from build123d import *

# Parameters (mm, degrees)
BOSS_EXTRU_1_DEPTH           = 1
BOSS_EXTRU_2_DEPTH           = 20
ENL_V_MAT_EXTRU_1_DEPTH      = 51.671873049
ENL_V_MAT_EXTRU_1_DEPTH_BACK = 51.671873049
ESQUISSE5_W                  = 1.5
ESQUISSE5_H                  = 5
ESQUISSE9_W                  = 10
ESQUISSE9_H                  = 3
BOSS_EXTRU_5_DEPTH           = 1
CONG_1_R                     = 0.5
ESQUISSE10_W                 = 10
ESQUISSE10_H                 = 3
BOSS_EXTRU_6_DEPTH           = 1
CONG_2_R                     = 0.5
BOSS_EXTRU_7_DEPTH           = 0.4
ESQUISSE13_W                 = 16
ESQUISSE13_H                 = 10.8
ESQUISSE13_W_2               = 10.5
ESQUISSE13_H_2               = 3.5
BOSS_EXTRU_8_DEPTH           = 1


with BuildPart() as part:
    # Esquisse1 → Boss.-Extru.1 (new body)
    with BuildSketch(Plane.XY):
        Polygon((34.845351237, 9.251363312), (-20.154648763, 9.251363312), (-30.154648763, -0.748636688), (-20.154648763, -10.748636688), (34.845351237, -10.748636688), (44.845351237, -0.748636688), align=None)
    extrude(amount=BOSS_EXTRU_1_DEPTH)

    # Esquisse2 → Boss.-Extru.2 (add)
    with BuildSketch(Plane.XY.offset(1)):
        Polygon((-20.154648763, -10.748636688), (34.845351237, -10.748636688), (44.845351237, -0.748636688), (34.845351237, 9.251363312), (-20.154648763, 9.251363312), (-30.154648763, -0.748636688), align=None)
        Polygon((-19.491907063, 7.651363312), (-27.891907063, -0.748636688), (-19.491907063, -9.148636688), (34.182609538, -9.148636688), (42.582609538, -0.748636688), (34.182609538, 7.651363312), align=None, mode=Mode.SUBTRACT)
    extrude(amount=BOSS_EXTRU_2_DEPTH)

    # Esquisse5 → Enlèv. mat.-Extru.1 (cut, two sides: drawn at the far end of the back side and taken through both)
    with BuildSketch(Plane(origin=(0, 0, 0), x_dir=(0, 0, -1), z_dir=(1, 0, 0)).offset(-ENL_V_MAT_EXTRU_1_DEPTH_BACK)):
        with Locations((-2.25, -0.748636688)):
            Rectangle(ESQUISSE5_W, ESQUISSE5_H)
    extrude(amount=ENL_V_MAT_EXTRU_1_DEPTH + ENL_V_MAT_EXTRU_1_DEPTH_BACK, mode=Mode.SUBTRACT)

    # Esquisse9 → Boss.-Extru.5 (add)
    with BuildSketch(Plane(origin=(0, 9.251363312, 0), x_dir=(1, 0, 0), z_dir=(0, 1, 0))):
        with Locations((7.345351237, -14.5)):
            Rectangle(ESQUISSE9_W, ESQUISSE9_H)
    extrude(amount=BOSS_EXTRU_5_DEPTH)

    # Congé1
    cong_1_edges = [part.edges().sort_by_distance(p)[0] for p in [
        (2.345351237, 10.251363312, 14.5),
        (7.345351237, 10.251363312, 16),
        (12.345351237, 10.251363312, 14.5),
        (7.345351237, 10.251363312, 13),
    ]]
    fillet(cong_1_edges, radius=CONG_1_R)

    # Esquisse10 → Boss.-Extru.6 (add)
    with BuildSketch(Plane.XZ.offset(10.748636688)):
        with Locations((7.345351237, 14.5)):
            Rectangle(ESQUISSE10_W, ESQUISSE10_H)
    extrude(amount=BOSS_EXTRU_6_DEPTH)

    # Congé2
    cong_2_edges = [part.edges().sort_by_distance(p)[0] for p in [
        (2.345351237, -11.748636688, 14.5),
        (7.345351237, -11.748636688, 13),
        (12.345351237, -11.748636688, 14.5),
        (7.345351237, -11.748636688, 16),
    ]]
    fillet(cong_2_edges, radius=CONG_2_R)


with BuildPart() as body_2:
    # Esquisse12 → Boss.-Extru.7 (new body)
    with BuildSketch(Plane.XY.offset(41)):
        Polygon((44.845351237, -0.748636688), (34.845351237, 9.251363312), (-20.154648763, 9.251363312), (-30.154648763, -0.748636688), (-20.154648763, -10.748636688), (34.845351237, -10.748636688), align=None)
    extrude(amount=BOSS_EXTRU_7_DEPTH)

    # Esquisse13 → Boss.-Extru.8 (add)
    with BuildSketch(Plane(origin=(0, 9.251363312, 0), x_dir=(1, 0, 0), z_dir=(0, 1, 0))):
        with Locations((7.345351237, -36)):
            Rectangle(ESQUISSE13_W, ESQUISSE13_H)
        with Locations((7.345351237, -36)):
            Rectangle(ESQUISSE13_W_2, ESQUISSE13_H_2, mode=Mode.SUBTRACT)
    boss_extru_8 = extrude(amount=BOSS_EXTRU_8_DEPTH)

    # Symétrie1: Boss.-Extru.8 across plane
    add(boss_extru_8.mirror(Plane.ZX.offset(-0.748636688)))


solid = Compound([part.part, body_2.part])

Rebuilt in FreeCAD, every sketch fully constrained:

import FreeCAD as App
import Part
import Sketcher

V = App.Vector


def edges_at(feature, points):
    """Names of the edges that pass closest to the given points."""
    edges = feature.Shape.Edges
    near = lambda p: min(range(len(edges)), key=lambda i: edges[i].distToShape(Part.Vertex(*p))[0])
    return sorted({f"Edge{near(p) + 1}" for p in points})


def add_polygon(sketch, points):
    """Adds a closed chain of lines whose ends are joined by coincident constraints."""
    first, n = sketch.GeometryCount, len(points)
    for a, b in zip(points, points[1:] + points[:1]):
        sketch.addGeometry(Part.LineSegment(App.Vector(*a, 0), App.Vector(*b, 0)), False)
    for i in range(n):
        sketch.addConstraint(Sketcher.Constraint("Coincident", first + i, 2, first + (i + 1) % n, 1))

doc = App.newDocument("Part")
params = doc.addObject("Spreadsheet::Sheet", "Params")
for row, (alias, value) in enumerate([
    ("sketch1_width", "55 mm"),
    ("pad1_length", "1 mm"),
    ("sketch2_width", "55 mm"),
    ("pad2_length", "20 mm"),
    ("sketch3_width", "5 mm"),
    ("sketch3_height", "1.5 mm"),
    ("sketch4_width", "10 mm"),
    ("sketch4_height", "3 mm"),
    ("pad3_length", "1 mm"),
    ("fillet_radius", "0.5 mm"),
    ("sketch5_width", "10 mm"),
    ("sketch5_height", "3 mm"),
    ("pad4_length", "1 mm"),
    ("fillet2_radius", "0.5 mm"),
    ("sketch6_width", "55 mm"),
    ("pad5_length", "0.4 mm"),
    ("sketch7_width", "16 mm"),
    ("sketch7_width2", "10.5 mm"),
    ("sketch7_height", "10.8 mm"),
    ("sketch7_height2", "3.5 mm"),
    ("pad6_length", "1 mm"),
], start=1):
    params.set(f"A{row}", alias)
    params.set(f"B{row}", "=" + value)
    params.setAlias(f"B{row}", alias)

body = doc.addObject("PartDesign::Body", "Body")

sketch1 = body.newObject("Sketcher::SketchObject", "Sketch")
sketch1.AttachmentSupport = (doc.getObject("XY_Plane"), [""])
sketch1.MapMode = "FlatFace"
add_polygon(sketch1, [(35, 9), (-20, 9), (-30, -1), (-20, -11), (35, -11), (45, -1)])
sketch1.addConstraint(Sketcher.Constraint("Horizontal", 0))
sketch1.addConstraint(Sketcher.Constraint("Horizontal", 3))
sketch1.addConstraint(Sketcher.Constraint("Perpendicular", 1, 2))
sketch1.addConstraint(Sketcher.Constraint("Perpendicular", 2, 4))
sketch1.addConstraint(Sketcher.Constraint("Perpendicular", 4, 5))
sketch1.addConstraint(Sketcher.Constraint("Horizontal", 1, 2, 4, 2))
sketch1.addConstraint(Sketcher.Constraint("Vertical", 0, 2, 2, 2))
sketch1.addConstraint(Sketcher.Constraint("Vertical", 3, 2, 5, 2))
sketch1.addConstraint(Sketcher.Constraint("DistanceX", 0, 2, 0, 1, 55.0))
sketch1.addConstraint(Sketcher.Constraint("DistanceX", 1, 2, 0, 2, 10.0))
sketch1.addConstraint(Sketcher.Constraint("DistanceX", 0, 2, -1, 1, 20.154649))
sketch1.addConstraint(Sketcher.Constraint("DistanceY", -1, 1, 0, 2, 9.251363))
sketch1.setExpression("Constraints[14]", "Params.sketch1_width")
pad1 = body.newObject("PartDesign::Pad", "Pad")
pad1.Profile = sketch1
pad1.setExpression("Length", "Params.pad1_length")

sketch2 = body.newObject("Sketcher::SketchObject", "Sketch001")
sketch2.AttachmentSupport = (doc.getObject("XY_Plane"), [""])
sketch2.MapMode = "FlatFace"
sketch2.AttachmentOffset = App.Placement(V(0, 0, 1), App.Rotation())
add_polygon(sketch2, [(-20, -11), (35, -11), (45, -1), (35, 9), (-20, 9), (-30, -1)])
add_polygon(sketch2, [(-28, -1), (-19, 8), (34, 8), (43, -1), (34, -9), (-19, -9)])
sketch2.addConstraint(Sketcher.Constraint("Horizontal", 0))
sketch2.addConstraint(Sketcher.Constraint("Horizontal", 3))
sketch2.addConstraint(Sketcher.Constraint("Horizontal", 7))
sketch2.addConstraint(Sketcher.Constraint("Horizontal", 10))
sketch2.addConstraint(Sketcher.Constraint("Perpendicular", 1, 2))
sketch2.addConstraint(Sketcher.Constraint("Perpendicular", 2, 4))
sketch2.addConstraint(Sketcher.Constraint("Perpendicular", 4, 5))
sketch2.addConstraint(Sketcher.Constraint("Perpendicular", 5, 6))
sketch2.addConstraint(Sketcher.Constraint("Perpendicular", 6, 8))
sketch2.addConstraint(Sketcher.Constraint("Perpendicular", 8, 9))
sketch2.addConstraint(Sketcher.Constraint("Perpendicular", 9, 11))
sketch2.addConstraint(Sketcher.Constraint("Horizontal", 1, 2, 4, 2))
sketch2.addConstraint(Sketcher.Constraint("Horizontal", 4, 2, 8, 2))
sketch2.addConstraint(Sketcher.Constraint("Horizontal", 8, 2, 11, 2))
sketch2.addConstraint(Sketcher.Constraint("Vertical", 0, 2, 2, 2))
sketch2.addConstraint(Sketcher.Constraint("Vertical", 3, 2, 5, 2))
sketch2.addConstraint(Sketcher.Constraint("Vertical", 7, 2, 9, 2))
sketch2.addConstraint(Sketcher.Constraint("DistanceX", 0, 1, 0, 2, 55.0))
sketch2.addConstraint(Sketcher.Constraint("DistanceX", 0, 2, 1, 2, 10.0))
sketch2.addConstraint(Sketcher.Constraint("DistanceY", 6, 2, 3, 2, 1.6))
sketch2.addConstraint(Sketcher.Constraint("DistanceX", 7, 1, 7, 2, 53.674517))
sketch2.addConstraint(Sketcher.Constraint("DistanceX", -1, 1, 0, 2, 34.845351))
sketch2.addConstraint(Sketcher.Constraint("DistanceX", -1, 1, 7, 2, 34.18261))
sketch2.addConstraint(Sketcher.Constraint("DistanceY", 0, 2, -1, 1, 10.748637))
sketch2.setExpression("Constraints[29]", "Params.sketch2_width")
pad2 = body.newObject("PartDesign::Pad", "Pad001")
pad2.Profile = sketch2
pad2.setExpression("Length", "Params.pad2_length")

sketch3 = body.newObject("Sketcher::SketchObject", "Sketch002")
sketch3.AttachmentSupport = (doc.getObject("YZ_Plane"), [""])
sketch3.MapMode = "FlatFace"
add_polygon(sketch3, [(1.8, 3), (-3.2, 3), (-3.2, 1.5), (1.8, 1.5)])
sketch3.addConstraint(Sketcher.Constraint("Horizontal", 0))
sketch3.addConstraint(Sketcher.Constraint("Vertical", 1))
sketch3.addConstraint(Sketcher.Constraint("Horizontal", 2))
sketch3.addConstraint(Sketcher.Constraint("Vertical", 3))
sketch3.addConstraint(Sketcher.Constraint("DistanceX", 0, 2, 0, 1, 5.0))
sketch3.addConstraint(Sketcher.Constraint("DistanceY", 1, 2, 1, 1, 1.5))
sketch3.addConstraint(Sketcher.Constraint("DistanceY", -1, 1, 0, 2, 3.0))
sketch3.addConstraint(Sketcher.Constraint("DistanceX", 0, 2, -1, 1, 3.248637))
sketch3.setExpression("Constraints[8]", "Params.sketch3_width")
sketch3.setExpression("Constraints[9]", "Params.sketch3_height")
pocket1 = body.newObject("PartDesign::Pocket", "Pocket")
pocket1.Profile = sketch3
pocket1.Type = "ThroughAll"
pocket1.Midplane = True

sketch4 = body.newObject("Sketcher::SketchObject", "Sketch003")
sketch4.AttachmentSupport = (doc.getObject("XZ_Plane"), [""])
sketch4.MapMode = "FlatFace"
sketch4.AttachmentOffset = App.Placement(V(0, 0, -9.251363), App.Rotation())
add_polygon(sketch4, [(2.3, 13), (2.3, 16), (12.3, 16), (12.3, 13)])
sketch4.addConstraint(Sketcher.Constraint("Vertical", 0))
sketch4.addConstraint(Sketcher.Constraint("Horizontal", 1))
sketch4.addConstraint(Sketcher.Constraint("Vertical", 2))
sketch4.addConstraint(Sketcher.Constraint("Horizontal", 3))
sketch4.addConstraint(Sketcher.Constraint("DistanceX", 1, 1, 1, 2, 10.0))
sketch4.addConstraint(Sketcher.Constraint("DistanceY", 0, 1, 0, 2, 3.0))
sketch4.addConstraint(Sketcher.Constraint("DistanceY", -1, 1, 0, 2, 16.0))
sketch4.addConstraint(Sketcher.Constraint("DistanceX", -1, 1, 0, 2, 2.345351))
sketch4.setExpression("Constraints[8]", "Params.sketch4_width")
sketch4.setExpression("Constraints[9]", "Params.sketch4_height")
pad3 = body.newObject("PartDesign::Pad", "Pad002")
pad3.Profile = sketch4
pad3.setExpression("Length", "Params.pad3_length")
pad3.Reversed = True
doc.recompute()

fillet = body.newObject("PartDesign::Fillet", "Fillet")
fillet.Base = (pad3, edges_at(pad3, [
    (2.345, 10.251, 14.5),
    (7.345, 10.251, 16),
    (12.345, 10.251, 14.5),
    (7.345, 10.251, 13),
]))
fillet.setExpression("Radius", "Params.fillet_radius")

sketch5 = body.newObject("Sketcher::SketchObject", "Sketch004")
sketch5.AttachmentSupport = (doc.getObject("XZ_Plane"), [""])
sketch5.MapMode = "FlatFace"
sketch5.AttachmentOffset = App.Placement(V(0, 0, 10.748637), App.Rotation())
add_polygon(sketch5, [(2.3, 16), (2.3, 13), (12.3, 13), (12.3, 16)])
sketch5.addConstraint(Sketcher.Constraint("Vertical", 0))
sketch5.addConstraint(Sketcher.Constraint("Horizontal", 1))
sketch5.addConstraint(Sketcher.Constraint("Vertical", 2))
sketch5.addConstraint(Sketcher.Constraint("Horizontal", 3))
sketch5.addConstraint(Sketcher.Constraint("DistanceX", 1, 1, 1, 2, 10.0))
sketch5.addConstraint(Sketcher.Constraint("DistanceY", 0, 2, 0, 1, 3.0))
sketch5.addConstraint(Sketcher.Constraint("DistanceY", -1, 1, 0, 2, 13.0))
sketch5.addConstraint(Sketcher.Constraint("DistanceX", -1, 1, 0, 2, 2.345351))
sketch5.setExpression("Constraints[8]", "Params.sketch5_width")
sketch5.setExpression("Constraints[9]", "Params.sketch5_height")
pad4 = body.newObject("PartDesign::Pad", "Pad003")
pad4.Profile = sketch5
pad4.setExpression("Length", "Params.pad4_length")
doc.recompute()

fillet2 = body.newObject("PartDesign::Fillet", "Fillet001")
fillet2.Base = (pad4, edges_at(pad4, [
    (2.345, -11.749, 14.5),
    (7.345, -11.749, 13),
    (12.345, -11.749, 14.5),
    (7.345, -11.749, 16),
]))
fillet2.setExpression("Radius", "Params.fillet2_radius")
body2 = doc.addObject("PartDesign::Body", "Body001")

sketch6 = body2.newObject("Sketcher::SketchObject", "Sketch005")
sketch6.AttachmentSupport = (doc.getObject("XY_Plane001"), [""])
sketch6.MapMode = "FlatFace"
sketch6.AttachmentOffset = App.Placement(V(0, 0, 41), App.Rotation())
add_polygon(sketch6, [(45, -1), (35, 9), (-20, 9), (-30, -1), (-20, -11), (35, -11)])
sketch6.addConstraint(Sketcher.Constraint("Horizontal", 1))
sketch6.addConstraint(Sketcher.Constraint("Horizontal", 4))
sketch6.addConstraint(Sketcher.Constraint("Perpendicular", 0, 2))
sketch6.addConstraint(Sketcher.Constraint("Perpendicular", 2, 3))
sketch6.addConstraint(Sketcher.Constraint("Perpendicular", 3, 5))
sketch6.addConstraint(Sketcher.Constraint("Horizontal", 2, 2, 5, 2))
sketch6.addConstraint(Sketcher.Constraint("Vertical", 1, 2, 3, 2))
sketch6.addConstraint(Sketcher.Constraint("Vertical", 0, 2, 4, 2))
sketch6.addConstraint(Sketcher.Constraint("DistanceX", 1, 2, 1, 1, 55.0))
sketch6.addConstraint(Sketcher.Constraint("DistanceX", 2, 2, 1, 2, 10.0))
sketch6.addConstraint(Sketcher.Constraint("DistanceX", -1, 1, 0, 2, 34.845351))
sketch6.addConstraint(Sketcher.Constraint("DistanceY", -1, 1, 0, 2, 9.251363))
sketch6.setExpression("Constraints[14]", "Params.sketch6_width")
pad5 = body2.newObject("PartDesign::Pad", "Pad004")
pad5.Profile = sketch6
pad5.setExpression("Length", "Params.pad5_length")

sketch7 = body2.newObject("Sketcher::SketchObject", "Sketch006")
sketch7.AttachmentSupport = (doc.getObject("XZ_Plane001"), [""])
sketch7.MapMode = "FlatFace"
sketch7.AttachmentOffset = App.Placement(V(0, 0, -9.251363), App.Rotation())
add_polygon(sketch7, [(-0.7, 30.6), (-0.7, 41.4), (15.3, 41.4), (15.3, 30.6)])
add_polygon(sketch7, [(12.6, 37.8), (2.1, 37.8), (2.1, 34.2), (12.6, 34.2)])
sketch7.addConstraint(Sketcher.Constraint("Vertical", 0))
sketch7.addConstraint(Sketcher.Constraint("Horizontal", 1))
sketch7.addConstraint(Sketcher.Constraint("Vertical", 2))
sketch7.addConstraint(Sketcher.Constraint("Horizontal", 3))
sketch7.addConstraint(Sketcher.Constraint("Horizontal", 4))
sketch7.addConstraint(Sketcher.Constraint("Vertical", 5))
sketch7.addConstraint(Sketcher.Constraint("Horizontal", 6))
sketch7.addConstraint(Sketcher.Constraint("Vertical", 7))
sketch7.addConstraint(Sketcher.Constraint("DistanceX", 1, 1, 1, 2, 16.0))
sketch7.addConstraint(Sketcher.Constraint("DistanceX", 4, 2, 4, 1, 10.5))
sketch7.addConstraint(Sketcher.Constraint("DistanceY", 0, 1, 0, 2, 10.8))
sketch7.addConstraint(Sketcher.Constraint("DistanceY", 5, 2, 5, 1, 3.5))
sketch7.addConstraint(Sketcher.Constraint("DistanceY", -1, 1, 0, 2, 41.4))
sketch7.addConstraint(Sketcher.Constraint("DistanceY", -1, 1, 4, 2, 37.75))
sketch7.addConstraint(Sketcher.Constraint("DistanceX", 0, 2, 4, 2, 2.75))
sketch7.addConstraint(Sketcher.Constraint("DistanceX", 0, 2, -1, 1, 0.654649))
sketch7.setExpression("Constraints[16]", "Params.sketch7_width")
sketch7.setExpression("Constraints[17]", "Params.sketch7_width2")
sketch7.setExpression("Constraints[18]", "Params.sketch7_height")
sketch7.setExpression("Constraints[19]", "Params.sketch7_height2")
pad6 = body2.newObject("PartDesign::Pad", "Pad005")
pad6.Profile = sketch7
pad6.setExpression("Length", "Params.pad6_length")
pad6.Reversed = True
doc.recompute()

datumplane = body2.newObject("PartDesign::Plane", "DatumPlane")
datumplane.AttachmentSupport = (doc.getObject("XZ_Plane001"), [""])
datumplane.MapMode = "FlatFace"
datumplane.AttachmentOffset = App.Placement(V(0, 0, 0.748637), App.Rotation())
mirrored = body2.newObject("PartDesign::Mirrored", "Mirrored")
mirrored.Originals = [pad6]
mirrored.MirrorPlane = (datumplane, [""])
body2.Tip = mirrored

doc.recompute()
